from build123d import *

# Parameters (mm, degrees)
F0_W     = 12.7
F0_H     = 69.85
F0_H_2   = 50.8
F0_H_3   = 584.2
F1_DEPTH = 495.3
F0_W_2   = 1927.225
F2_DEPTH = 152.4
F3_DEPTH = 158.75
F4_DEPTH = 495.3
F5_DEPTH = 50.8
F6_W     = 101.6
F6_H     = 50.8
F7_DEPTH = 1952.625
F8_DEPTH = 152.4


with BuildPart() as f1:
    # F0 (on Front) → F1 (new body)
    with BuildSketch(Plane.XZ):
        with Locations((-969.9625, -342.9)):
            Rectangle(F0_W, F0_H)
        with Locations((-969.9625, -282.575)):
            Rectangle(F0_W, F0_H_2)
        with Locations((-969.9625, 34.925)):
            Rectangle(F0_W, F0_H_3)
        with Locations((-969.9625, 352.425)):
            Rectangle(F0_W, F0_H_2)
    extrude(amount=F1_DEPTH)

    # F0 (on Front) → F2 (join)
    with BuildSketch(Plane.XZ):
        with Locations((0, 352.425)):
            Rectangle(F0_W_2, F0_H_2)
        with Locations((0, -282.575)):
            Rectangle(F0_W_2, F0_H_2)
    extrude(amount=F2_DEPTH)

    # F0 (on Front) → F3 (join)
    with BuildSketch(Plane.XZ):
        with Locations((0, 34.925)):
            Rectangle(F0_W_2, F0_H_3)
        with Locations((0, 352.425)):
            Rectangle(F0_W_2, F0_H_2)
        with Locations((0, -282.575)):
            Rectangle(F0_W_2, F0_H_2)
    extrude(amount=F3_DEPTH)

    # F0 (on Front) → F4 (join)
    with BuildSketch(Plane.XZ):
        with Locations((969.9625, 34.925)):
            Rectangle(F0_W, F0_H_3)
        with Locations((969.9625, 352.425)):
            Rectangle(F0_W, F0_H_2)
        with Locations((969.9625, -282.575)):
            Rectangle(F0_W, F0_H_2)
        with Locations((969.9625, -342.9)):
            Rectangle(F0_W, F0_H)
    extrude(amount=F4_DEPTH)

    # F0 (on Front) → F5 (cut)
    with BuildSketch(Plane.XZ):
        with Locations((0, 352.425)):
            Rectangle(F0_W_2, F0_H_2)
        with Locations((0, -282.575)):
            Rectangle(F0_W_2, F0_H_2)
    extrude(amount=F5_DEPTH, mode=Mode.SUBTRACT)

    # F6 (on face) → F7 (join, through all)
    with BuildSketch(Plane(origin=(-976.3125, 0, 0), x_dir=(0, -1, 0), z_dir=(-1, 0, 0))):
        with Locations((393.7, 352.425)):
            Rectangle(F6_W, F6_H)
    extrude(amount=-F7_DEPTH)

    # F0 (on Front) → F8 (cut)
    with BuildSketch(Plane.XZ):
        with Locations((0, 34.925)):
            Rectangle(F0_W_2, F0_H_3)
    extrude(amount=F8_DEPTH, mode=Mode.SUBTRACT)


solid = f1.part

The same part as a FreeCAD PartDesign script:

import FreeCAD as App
import Part
import Sketcher
Q = App.Units.Quantity


def add_polygon(sketch, points):
    """Adds a closed chain of lines whose ends are joined by coincident constraints."""
    first, n = sketch.GeometryCount, len(points)
    for a, b in zip(points, points[1:] + points[:1]):
        sketch.addGeometry(Part.LineSegment(App.Vector(*a, 0), App.Vector(*b, 0)), False)
    for i in range(n):
        sketch.addConstraint(Sketcher.Constraint("Coincident", first + i, 2, first + (i + 1) % n, 1))

doc = App.newDocument("Part")
params = doc.addObject("Spreadsheet::Sheet", "Params")
for row, (alias, value) in enumerate([
    ("sketch1_width", "0.5 in"),
    ("sketch1_height", "29.75 in"),
    ("pad1_length", "19.5 in"),
    ("sketch2_height", "2 in"),
    ("sketch2_width", "75.875 in"),
    ("pad2_length", "6 in"),
    ("sketch3_height", "27 in"),
    ("sketch3_width", "75.875 in"),
    ("pad3_length", "6.25 in"),
    ("sketch4_width", "0.5 in"),
    ("sketch4_height", "29.75 in"),
    ("pad4_length", "19.5 in"),
    ("sketch5_height", "2 in"),
    ("sketch5_width", "75.875 in"),
    ("pocket1_length", "2 in"),
    ("sketch6_width", "4 in"),
    ("sketch6_height", "2 in"),
    ("sketch7_height", "23 in"),
    ("sketch7_width", "75.875 in"),
    ("pocket2_length", "6 in"),
], start=1):
    params.set(f"A{row}", alias)
    params.set(f"B{row}", "=" + value)
    params.setAlias(f"B{row}", alias)

body = doc.addObject("PartDesign::Body", "Body")

# Sketch on XZ plane
sketch1 = doc.addObject("Sketcher::SketchObject", "Sketch")
body.addObject(sketch1)
sketch1.AttachmentSupport = (doc.XZ_Plane, [""])
sketch1.MapMode = "FlatFace"
add_polygon(sketch1, [(-976, -378), (-964, -378), (-964, 378), (-976, 378)])  # lines 0-3
sketch1.addConstraint([
    Sketcher.Constraint("Horizontal", 0),
    Sketcher.Constraint("Vertical", 1),
    Sketcher.Constraint("Horizontal", 2),
    Sketcher.Constraint("Vertical", 3),
    Sketcher.Constraint("DistanceX", 0, 1, 0, 2, Q("0.5 in")),
    Sketcher.Constraint("DistanceY", 1, 1, 1, 2, Q("29.75 in")),
    Sketcher.Constraint("DistanceX", 0, 2, -1, 1, Q("37.9375 in")),
    Sketcher.Constraint("DistanceY", 0, 2, -1, 1, Q("14.875 in")),
])
sketch1.setExpression("Constraints[8]", "Params.sketch1_width")
sketch1.setExpression("Constraints[9]", "Params.sketch1_height")
pad1 = doc.addObject("PartDesign::Pad", "Pad")
body.addObject(pad1)
pad1.Profile = sketch1
pad1.setExpression("Length", "Params.pad1_length")

# Sketch on XZ plane
sketch2 = doc.addObject("Sketcher::SketchObject", "Sketch001")
body.addObject(sketch2)
sketch2.AttachmentSupport = (doc.XZ_Plane, [""])
sketch2.MapMode = "FlatFace"
add_polygon(sketch2, [(-964, 378), (-964, 327), (964, 327), (964, 378)])  # lines 0-3
add_polygon(sketch2, [(-964, -257), (-964, -308), (964, -308), (964, -257)])  # lines 4-7
sketch2.addConstraint([
    Sketcher.Constraint("Vertical", 0),
    Sketcher.Constraint("Horizontal", 1),
    Sketcher.Constraint("Vertical", 2),
    Sketcher.Constraint("Horizontal", 3),
    Sketcher.Constraint("Vertical", 4),
    Sketcher.Constraint("Horizontal", 5),
    Sketcher.Constraint("Vertical", 6),
    Sketcher.Constraint("Horizontal", 7),
    Sketcher.Constraint("Vertical", 3, 2, 4, 2),
    Sketcher.Constraint("Vertical", 2, 2, 5, 2),
    Sketcher.Constraint("Equal", 2, 4),
    Sketcher.Constraint("DistanceY", 0, 2, 0, 1, Q("2 in")),
    Sketcher.Constraint("DistanceY", 4, 2, 0, 2, Q("25 in")),
    Sketcher.Constraint("DistanceX", 1, 1, 1, 2, Q("75.875 in")),
    Sketcher.Constraint("DistanceX", 0, 2, -1, 1, Q("37.9375 in")),
    Sketcher.Constraint("DistanceY", -1, 1, 0, 2, Q("12.875 in")),
])
sketch2.setExpression("Constraints[19]", "Params.sketch2_height")
sketch2.setExpression("Constraints[21]", "Params.sketch2_width")
pad2 = doc.addObject("PartDesign::Pad", "Pad001")
body.addObject(pad2)
pad2.Profile = sketch2
pad2.setExpression("Length", "Params.pad2_length")

# Sketch on XZ plane
sketch3 = doc.addObject("Sketcher::SketchObject", "Sketch002")
body.addObject(sketch3)
sketch3.AttachmentSupport = (doc.XZ_Plane, [""])
sketch3.MapMode = "FlatFace"
add_polygon(sketch3, [(964, 378), (-964, 378), (-964, -308), (964, -308)])  # lines 0-3
sketch3.addConstraint([
    Sketcher.Constraint("Horizontal", 0),
    Sketcher.Constraint("Vertical", 1),
    Sketcher.Constraint("Horizontal", 2),
    Sketcher.Constraint("Vertical", 3),
    Sketcher.Constraint("DistanceY", 1, 2, 1, 1, Q("27 in")),
    Sketcher.Constraint("DistanceX", 0, 2, 0, 1, Q("75.875 in")),
    Sketcher.Constraint("DistanceX", 0, 2, -1, 1, Q("37.9375 in")),
    Sketcher.Constraint("DistanceY", -1, 1, 0, 2, Q("14.875 in")),
])
sketch3.setExpression("Constraints[8]", "Params.sketch3_height")
sketch3.setExpression("Constraints[9]", "Params.sketch3_width")
pad3 = doc.addObject("PartDesign::Pad", "Pad002")
body.addObject(pad3)
pad3.Profile = sketch3
pad3.setExpression("Length", "Params.pad3_length")

# Sketch on XZ plane
sketch4 = doc.addObject("Sketcher::SketchObject", "Sketch003")
body.addObject(sketch4)
sketch4.AttachmentSupport = (doc.XZ_Plane, [""])
sketch4.MapMode = "FlatFace"
add_polygon(sketch4, [(976, 378), (964, 378), (964, -378), (976, -378)])  # lines 0-3
sketch4.addConstraint([
    Sketcher.Constraint("Horizontal", 0),
    Sketcher.Constraint("Vertical", 1),
    Sketcher.Constraint("Horizontal", 2),
    Sketcher.Constraint("Vertical", 3),
    Sketcher.Constraint("DistanceX", 0, 2, 0, 1, Q("0.5 in")),
    Sketcher.Constraint("DistanceY", 1, 2, 1, 1, Q("29.75 in")),
    Sketcher.Constraint("DistanceX", -1, 1, 0, 2, Q("37.9375 in")),
    Sketcher.Constraint("DistanceY", -1, 1, 0, 2, Q("14.875 in")),
])
sketch4.setExpression("Constraints[8]", "Params.sketch4_width")
sketch4.setExpression("Constraints[9]", "Params.sketch4_height")
pad4 = doc.addObject("PartDesign::Pad", "Pad003")
body.addObject(pad4)
pad4.Profile = sketch4
pad4.setExpression("Length", "Params.pad4_length")

# Sketch on XZ plane
sketch5 = doc.addObject("Sketcher::SketchObject", "Sketch004")
body.addObject(sketch5)
sketch5.AttachmentSupport = (doc.XZ_Plane, [""])
sketch5.MapMode = "FlatFace"
add_polygon(sketch5, [(-964, 378), (-964, 327), (964, 327), (964, 378)])  # lines 0-3
add_polygon(sketch5, [(-964, -257), (-964, -308), (964, -308), (964, -257)])  # lines 4-7
sketch5.addConstraint([
    Sketcher.Constraint("Vertical", 0),
    Sketcher.Constraint("Horizontal", 1),
    Sketcher.Constraint("Vertical", 2),
    Sketcher.Constraint("Horizontal", 3),
    Sketcher.Constraint("Vertical", 4),
    Sketcher.Constraint("Horizontal", 5),
    Sketcher.Constraint("Vertical", 6),
    Sketcher.Constraint("Horizontal", 7),
    Sketcher.Constraint("Vertical", 3, 2, 4, 2),
    Sketcher.Constraint("Vertical", 2, 2, 5, 2),
    Sketcher.Constraint("Equal", 2, 4),
    Sketcher.Constraint("DistanceY", 0, 2, 0, 1, Q("2 in")),
    Sketcher.Constraint("DistanceY", 4, 2, 0, 2, Q("25 in")),
    Sketcher.Constraint("DistanceX", 1, 1, 1, 2, Q("75.875 in")),
    Sketcher.Constraint("DistanceX", 0, 2, -1, 1, Q("37.9375 in")),
    Sketcher.Constraint("DistanceY", -1, 1, 0, 2, Q("12.875 in")),
])
sketch5.setExpression("Constraints[19]", "Params.sketch5_height")
sketch5.setExpression("Constraints[21]", "Params.sketch5_width")
pocket1 = doc.addObject("PartDesign::Pocket", "Pocket")
body.addObject(pocket1)
pocket1.Profile = sketch5
pocket1.setExpression("Length", "Params.pocket1_length")
pocket1.Reversed = True

# Sketch on YZ plane
sketch6 = doc.addObject("Sketcher::SketchObject", "Sketch005")
body.addObject(sketch6)
sketch6.AttachmentSupport = (doc.YZ_Plane, [""])
sketch6.MapMode = "FlatFace"
sketch6.AttachmentOffset = App.Placement(App.Vector(0, 0, -38.4375 * 25.4), App.Rotation())
add_polygon(sketch6, [(-343, 378), (-343, 327), (-444, 327), (-444, 378)])  # lines 0-3
sketch6.addConstraint([
    Sketcher.Constraint("Vertical", 0),
    Sketcher.Constraint("Horizontal", 1),
    Sketcher.Constraint("Vertical", 2),
    Sketcher.Constraint("Horizontal", 3),
    Sketcher.Constraint("DistanceX", 1, 2, 1, 1, Q("4 in")),
    Sketcher.Constraint("DistanceY", 0, 2, 0, 1, Q("2 in")),
    Sketcher.Constraint("DistanceX", 0, 2, -1, 1, Q("13.5 in")),
    Sketcher.Constraint("DistanceY", -1, 1, 0, 2, Q("12.875 in")),
])
sketch6.setExpression("Constraints[8]", "Params.sketch6_width")
sketch6.setExpression("Constraints[9]", "Params.sketch6_height")
pad5 = doc.addObject("PartDesign::Pad", "Pad004")
body.addObject(pad5)
pad5.Profile = sketch6
pad5.Type = "UpToLast"

# Sketch on XZ plane
sketch7 = doc.addObject("Sketcher::SketchObject", "Sketch006")
body.addObject(sketch7)
sketch7.AttachmentSupport = (doc.XZ_Plane, [""])
sketch7.MapMode = "FlatFace"
add_polygon(sketch7, [(-964, 327), (-964, -257), (964, -257), (964, 327)])  # lines 0-3
sketch7.addConstraint([
    Sketcher.Constraint("Vertical", 0),
    Sketcher.Constraint("Horizontal", 1),
    Sketcher.Constraint("Vertical", 2),
    Sketcher.Constraint("Horizontal", 3),
    Sketcher.Constraint("DistanceY", 0, 2, 0, 1, Q("23 in")),
    Sketcher.Constraint("DistanceX", 1, 1, 1, 2, Q("75.875 in")),
    Sketcher.Constraint("DistanceX", 0, 2, -1, 1, Q("37.9375 in")),
    Sketcher.Constraint("DistanceY", 0, 2, -1, 1, Q("10.125 in")),
])
sketch7.setExpression("Constraints[8]", "Params.sketch7_height")
sketch7.setExpression("Constraints[9]", "Params.sketch7_width")
pocket2 = doc.addObject("PartDesign::Pocket", "Pocket001")
body.addObject(pocket2)
pocket2.Profile = sketch7
pocket2.setExpression("Length", "Params.pocket2_length")
pocket2.Reversed = True

doc.recompute()
